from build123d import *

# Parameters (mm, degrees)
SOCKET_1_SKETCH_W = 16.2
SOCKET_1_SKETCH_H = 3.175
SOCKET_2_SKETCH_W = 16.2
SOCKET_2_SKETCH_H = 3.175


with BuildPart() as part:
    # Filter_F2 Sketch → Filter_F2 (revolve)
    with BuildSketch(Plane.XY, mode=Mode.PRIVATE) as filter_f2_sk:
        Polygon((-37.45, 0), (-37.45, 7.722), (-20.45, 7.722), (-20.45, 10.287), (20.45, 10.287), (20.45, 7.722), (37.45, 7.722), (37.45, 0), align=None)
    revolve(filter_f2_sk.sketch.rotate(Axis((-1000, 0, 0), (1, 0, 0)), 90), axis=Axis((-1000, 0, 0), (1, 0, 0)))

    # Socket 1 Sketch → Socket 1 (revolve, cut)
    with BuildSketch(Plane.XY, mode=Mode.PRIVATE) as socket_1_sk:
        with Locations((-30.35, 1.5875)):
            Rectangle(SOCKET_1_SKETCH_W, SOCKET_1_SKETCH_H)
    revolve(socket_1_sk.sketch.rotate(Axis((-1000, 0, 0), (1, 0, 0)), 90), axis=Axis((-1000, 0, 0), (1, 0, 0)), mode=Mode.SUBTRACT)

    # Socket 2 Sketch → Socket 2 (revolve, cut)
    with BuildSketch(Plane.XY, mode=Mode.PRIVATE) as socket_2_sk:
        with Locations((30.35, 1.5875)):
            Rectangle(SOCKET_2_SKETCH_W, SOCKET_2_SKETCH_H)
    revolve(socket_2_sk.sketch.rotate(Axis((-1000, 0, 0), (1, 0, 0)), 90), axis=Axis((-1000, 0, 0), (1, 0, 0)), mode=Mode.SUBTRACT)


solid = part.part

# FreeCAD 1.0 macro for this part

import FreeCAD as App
import Part
import Sketcher
Q = App.Units.Quantity


def add_polygon(sketch, points):
    """Adds a closed chain of lines whose ends are joined by coincident constraints."""
    first, n = sketch.GeometryCount, len(points)
    for a, b in zip(points, points[1:] + points[:1]):
        sketch.addGeometry(Part.LineSegment(App.Vector(*a, 0), App.Vector(*b, 0)), False)
    for i in range(n):
        sketch.addConstraint(Sketcher.Constraint("Coincident", first + i, 2, first + (i + 1) % n, 1))

doc = App.newDocument("Part")
body = doc.addObject("PartDesign::Body", "Body")

sketch1 = body.newObject("Sketcher::SketchObject", "Sketch")
sketch1.AttachmentSupport = (doc.getObject("XY_Plane"), [""])
sketch1.MapMode = "FlatFace"
add_polygon(sketch1, [(-37.5, 7.7), (-37.5, 0), (37.5, 0), (37.5, 7.7), (20.4, 7.7), (20.4, 10.3), (-20.4, 10.3), (-20.4, 7.7)])
sketch1.addConstraint(Sketcher.Constraint("Vertical", 0))
sketch1.addConstraint(Sketcher.Constraint("Horizontal", 1))
sketch1.addConstraint(Sketcher.Constraint("Vertical", 2))
sketch1.addConstraint(Sketcher.Constraint("Horizontal", 3))
sketch1.addConstraint(Sketcher.Constraint("Vertical", 4))
sketch1.addConstraint(Sketcher.Constraint("Horizontal", 5))
sketch1.addConstraint(Sketcher.Constraint("Vertical", 6))
sketch1.addConstraint(Sketcher.Constraint("Horizontal", 7))
sketch1.addConstraint(Sketcher.Constraint("Symmetric", 0, 2, 1, 2, -1, 1))
sketch1.addConstraint(Sketcher.Constraint("Symmetric", 3, 2, 6, 2, -2))
sketch1.addConstraint(Sketcher.Constraint("DistanceX", 3, 2, 3, 1, Q("17 mm")))
sketch1.addConstraint(Sketcher.Constraint("DistanceX", 1, 1, 1, 2, Q("74.9 mm")))
sketch1.addConstraint(Sketcher.Constraint("DistanceY", 0, 2, 0, 1, Q("7.722 mm")))
sketch1.addConstraint(Sketcher.Constraint("DistanceY", 4, 1, 4, 2, Q("2.565 mm")))
revolution = body.newObject("PartDesign::Revolution", "Revolution")
revolution.Profile = sketch1
revolution.ReferenceAxis = (sketch1, ["H_Axis"])
revolution.Angle = 360

sketch2 = body.newObject("Sketcher::SketchObject", "Sketch001")
sketch2.AttachmentSupport = (doc.getObject("XY_Plane"), [""])
sketch2.MapMode = "FlatFace"
add_polygon(sketch2, [(-38.5, 3.2), (-38.5, 0), (-22.2, 0), (-22.2, 3.2)])
sketch2.addConstraint(Sketcher.Constraint("Vertical", 0))
sketch2.addConstraint(Sketcher.Constraint("Horizontal", 1))
sketch2.addConstraint(Sketcher.Constraint("Vertical", 2))
sketch2.addConstraint(Sketcher.Constraint("Horizontal", 3))
sketch2.addConstraint(Sketcher.Constraint("PointOnObject", 0, 2, -1))
sketch2.addConstraint(Sketcher.Constraint("DistanceX", 1, 1, 1, 2, Q("16.2 mm")))
sketch2.addConstraint(Sketcher.Constraint("DistanceY", 0, 2, 0, 1, Q("3.175 mm")))
sketch2.addConstraint(Sketcher.Constraint("DistanceX", 0, 2, -1, 1, Q("38.45 mm")))
groove = body.newObject("PartDesign::Groove", "Groove")
groove.Profile = sketch2
groove.ReferenceAxis = (sketch2, ["H_Axis"])
groove.Angle = 360

sketch3 = body.newObject("Sketcher::SketchObject", "Sketch002")
sketch3.AttachmentSupport = (doc.getObject("XY_Plane"), [""])
sketch3.MapMode = "FlatFace"
add_polygon(sketch3, [(22.2, 3.2), (22.2, 0), (38.5, 0), (38.5, 3.2)])
sketch3.addConstraint(Sketcher.Constraint("Vertical", 0))
sketch3.addConstraint(Sketcher.Constraint("Horizontal", 1))
sketch3.addConstraint(Sketcher.Constraint("Vertical", 2))
sketch3.addConstraint(Sketcher.Constraint("Horizontal", 3))
sketch3.addConstraint(Sketcher.Constraint("PointOnObject", 0, 2, -1))
sketch3.addConstraint(Sketcher.Constraint("DistanceX", 1, 1, 1, 2, Q("16.2 mm")))
sketch3.addConstraint(Sketcher.Constraint("DistanceY", 0, 2, 0, 1, Q("3.175 mm")))
sketch3.addConstraint(Sketcher.Constraint("DistanceX", -1, 1, 0, 2, Q("22.25 mm")))
groove2 = body.newObject("PartDesign::Groove", "Groove001")
groove2.Profile = sketch3
groove2.ReferenceAxis = (sketch3, ["H_Axis"])
groove2.Angle = 360

doc.recompute()
